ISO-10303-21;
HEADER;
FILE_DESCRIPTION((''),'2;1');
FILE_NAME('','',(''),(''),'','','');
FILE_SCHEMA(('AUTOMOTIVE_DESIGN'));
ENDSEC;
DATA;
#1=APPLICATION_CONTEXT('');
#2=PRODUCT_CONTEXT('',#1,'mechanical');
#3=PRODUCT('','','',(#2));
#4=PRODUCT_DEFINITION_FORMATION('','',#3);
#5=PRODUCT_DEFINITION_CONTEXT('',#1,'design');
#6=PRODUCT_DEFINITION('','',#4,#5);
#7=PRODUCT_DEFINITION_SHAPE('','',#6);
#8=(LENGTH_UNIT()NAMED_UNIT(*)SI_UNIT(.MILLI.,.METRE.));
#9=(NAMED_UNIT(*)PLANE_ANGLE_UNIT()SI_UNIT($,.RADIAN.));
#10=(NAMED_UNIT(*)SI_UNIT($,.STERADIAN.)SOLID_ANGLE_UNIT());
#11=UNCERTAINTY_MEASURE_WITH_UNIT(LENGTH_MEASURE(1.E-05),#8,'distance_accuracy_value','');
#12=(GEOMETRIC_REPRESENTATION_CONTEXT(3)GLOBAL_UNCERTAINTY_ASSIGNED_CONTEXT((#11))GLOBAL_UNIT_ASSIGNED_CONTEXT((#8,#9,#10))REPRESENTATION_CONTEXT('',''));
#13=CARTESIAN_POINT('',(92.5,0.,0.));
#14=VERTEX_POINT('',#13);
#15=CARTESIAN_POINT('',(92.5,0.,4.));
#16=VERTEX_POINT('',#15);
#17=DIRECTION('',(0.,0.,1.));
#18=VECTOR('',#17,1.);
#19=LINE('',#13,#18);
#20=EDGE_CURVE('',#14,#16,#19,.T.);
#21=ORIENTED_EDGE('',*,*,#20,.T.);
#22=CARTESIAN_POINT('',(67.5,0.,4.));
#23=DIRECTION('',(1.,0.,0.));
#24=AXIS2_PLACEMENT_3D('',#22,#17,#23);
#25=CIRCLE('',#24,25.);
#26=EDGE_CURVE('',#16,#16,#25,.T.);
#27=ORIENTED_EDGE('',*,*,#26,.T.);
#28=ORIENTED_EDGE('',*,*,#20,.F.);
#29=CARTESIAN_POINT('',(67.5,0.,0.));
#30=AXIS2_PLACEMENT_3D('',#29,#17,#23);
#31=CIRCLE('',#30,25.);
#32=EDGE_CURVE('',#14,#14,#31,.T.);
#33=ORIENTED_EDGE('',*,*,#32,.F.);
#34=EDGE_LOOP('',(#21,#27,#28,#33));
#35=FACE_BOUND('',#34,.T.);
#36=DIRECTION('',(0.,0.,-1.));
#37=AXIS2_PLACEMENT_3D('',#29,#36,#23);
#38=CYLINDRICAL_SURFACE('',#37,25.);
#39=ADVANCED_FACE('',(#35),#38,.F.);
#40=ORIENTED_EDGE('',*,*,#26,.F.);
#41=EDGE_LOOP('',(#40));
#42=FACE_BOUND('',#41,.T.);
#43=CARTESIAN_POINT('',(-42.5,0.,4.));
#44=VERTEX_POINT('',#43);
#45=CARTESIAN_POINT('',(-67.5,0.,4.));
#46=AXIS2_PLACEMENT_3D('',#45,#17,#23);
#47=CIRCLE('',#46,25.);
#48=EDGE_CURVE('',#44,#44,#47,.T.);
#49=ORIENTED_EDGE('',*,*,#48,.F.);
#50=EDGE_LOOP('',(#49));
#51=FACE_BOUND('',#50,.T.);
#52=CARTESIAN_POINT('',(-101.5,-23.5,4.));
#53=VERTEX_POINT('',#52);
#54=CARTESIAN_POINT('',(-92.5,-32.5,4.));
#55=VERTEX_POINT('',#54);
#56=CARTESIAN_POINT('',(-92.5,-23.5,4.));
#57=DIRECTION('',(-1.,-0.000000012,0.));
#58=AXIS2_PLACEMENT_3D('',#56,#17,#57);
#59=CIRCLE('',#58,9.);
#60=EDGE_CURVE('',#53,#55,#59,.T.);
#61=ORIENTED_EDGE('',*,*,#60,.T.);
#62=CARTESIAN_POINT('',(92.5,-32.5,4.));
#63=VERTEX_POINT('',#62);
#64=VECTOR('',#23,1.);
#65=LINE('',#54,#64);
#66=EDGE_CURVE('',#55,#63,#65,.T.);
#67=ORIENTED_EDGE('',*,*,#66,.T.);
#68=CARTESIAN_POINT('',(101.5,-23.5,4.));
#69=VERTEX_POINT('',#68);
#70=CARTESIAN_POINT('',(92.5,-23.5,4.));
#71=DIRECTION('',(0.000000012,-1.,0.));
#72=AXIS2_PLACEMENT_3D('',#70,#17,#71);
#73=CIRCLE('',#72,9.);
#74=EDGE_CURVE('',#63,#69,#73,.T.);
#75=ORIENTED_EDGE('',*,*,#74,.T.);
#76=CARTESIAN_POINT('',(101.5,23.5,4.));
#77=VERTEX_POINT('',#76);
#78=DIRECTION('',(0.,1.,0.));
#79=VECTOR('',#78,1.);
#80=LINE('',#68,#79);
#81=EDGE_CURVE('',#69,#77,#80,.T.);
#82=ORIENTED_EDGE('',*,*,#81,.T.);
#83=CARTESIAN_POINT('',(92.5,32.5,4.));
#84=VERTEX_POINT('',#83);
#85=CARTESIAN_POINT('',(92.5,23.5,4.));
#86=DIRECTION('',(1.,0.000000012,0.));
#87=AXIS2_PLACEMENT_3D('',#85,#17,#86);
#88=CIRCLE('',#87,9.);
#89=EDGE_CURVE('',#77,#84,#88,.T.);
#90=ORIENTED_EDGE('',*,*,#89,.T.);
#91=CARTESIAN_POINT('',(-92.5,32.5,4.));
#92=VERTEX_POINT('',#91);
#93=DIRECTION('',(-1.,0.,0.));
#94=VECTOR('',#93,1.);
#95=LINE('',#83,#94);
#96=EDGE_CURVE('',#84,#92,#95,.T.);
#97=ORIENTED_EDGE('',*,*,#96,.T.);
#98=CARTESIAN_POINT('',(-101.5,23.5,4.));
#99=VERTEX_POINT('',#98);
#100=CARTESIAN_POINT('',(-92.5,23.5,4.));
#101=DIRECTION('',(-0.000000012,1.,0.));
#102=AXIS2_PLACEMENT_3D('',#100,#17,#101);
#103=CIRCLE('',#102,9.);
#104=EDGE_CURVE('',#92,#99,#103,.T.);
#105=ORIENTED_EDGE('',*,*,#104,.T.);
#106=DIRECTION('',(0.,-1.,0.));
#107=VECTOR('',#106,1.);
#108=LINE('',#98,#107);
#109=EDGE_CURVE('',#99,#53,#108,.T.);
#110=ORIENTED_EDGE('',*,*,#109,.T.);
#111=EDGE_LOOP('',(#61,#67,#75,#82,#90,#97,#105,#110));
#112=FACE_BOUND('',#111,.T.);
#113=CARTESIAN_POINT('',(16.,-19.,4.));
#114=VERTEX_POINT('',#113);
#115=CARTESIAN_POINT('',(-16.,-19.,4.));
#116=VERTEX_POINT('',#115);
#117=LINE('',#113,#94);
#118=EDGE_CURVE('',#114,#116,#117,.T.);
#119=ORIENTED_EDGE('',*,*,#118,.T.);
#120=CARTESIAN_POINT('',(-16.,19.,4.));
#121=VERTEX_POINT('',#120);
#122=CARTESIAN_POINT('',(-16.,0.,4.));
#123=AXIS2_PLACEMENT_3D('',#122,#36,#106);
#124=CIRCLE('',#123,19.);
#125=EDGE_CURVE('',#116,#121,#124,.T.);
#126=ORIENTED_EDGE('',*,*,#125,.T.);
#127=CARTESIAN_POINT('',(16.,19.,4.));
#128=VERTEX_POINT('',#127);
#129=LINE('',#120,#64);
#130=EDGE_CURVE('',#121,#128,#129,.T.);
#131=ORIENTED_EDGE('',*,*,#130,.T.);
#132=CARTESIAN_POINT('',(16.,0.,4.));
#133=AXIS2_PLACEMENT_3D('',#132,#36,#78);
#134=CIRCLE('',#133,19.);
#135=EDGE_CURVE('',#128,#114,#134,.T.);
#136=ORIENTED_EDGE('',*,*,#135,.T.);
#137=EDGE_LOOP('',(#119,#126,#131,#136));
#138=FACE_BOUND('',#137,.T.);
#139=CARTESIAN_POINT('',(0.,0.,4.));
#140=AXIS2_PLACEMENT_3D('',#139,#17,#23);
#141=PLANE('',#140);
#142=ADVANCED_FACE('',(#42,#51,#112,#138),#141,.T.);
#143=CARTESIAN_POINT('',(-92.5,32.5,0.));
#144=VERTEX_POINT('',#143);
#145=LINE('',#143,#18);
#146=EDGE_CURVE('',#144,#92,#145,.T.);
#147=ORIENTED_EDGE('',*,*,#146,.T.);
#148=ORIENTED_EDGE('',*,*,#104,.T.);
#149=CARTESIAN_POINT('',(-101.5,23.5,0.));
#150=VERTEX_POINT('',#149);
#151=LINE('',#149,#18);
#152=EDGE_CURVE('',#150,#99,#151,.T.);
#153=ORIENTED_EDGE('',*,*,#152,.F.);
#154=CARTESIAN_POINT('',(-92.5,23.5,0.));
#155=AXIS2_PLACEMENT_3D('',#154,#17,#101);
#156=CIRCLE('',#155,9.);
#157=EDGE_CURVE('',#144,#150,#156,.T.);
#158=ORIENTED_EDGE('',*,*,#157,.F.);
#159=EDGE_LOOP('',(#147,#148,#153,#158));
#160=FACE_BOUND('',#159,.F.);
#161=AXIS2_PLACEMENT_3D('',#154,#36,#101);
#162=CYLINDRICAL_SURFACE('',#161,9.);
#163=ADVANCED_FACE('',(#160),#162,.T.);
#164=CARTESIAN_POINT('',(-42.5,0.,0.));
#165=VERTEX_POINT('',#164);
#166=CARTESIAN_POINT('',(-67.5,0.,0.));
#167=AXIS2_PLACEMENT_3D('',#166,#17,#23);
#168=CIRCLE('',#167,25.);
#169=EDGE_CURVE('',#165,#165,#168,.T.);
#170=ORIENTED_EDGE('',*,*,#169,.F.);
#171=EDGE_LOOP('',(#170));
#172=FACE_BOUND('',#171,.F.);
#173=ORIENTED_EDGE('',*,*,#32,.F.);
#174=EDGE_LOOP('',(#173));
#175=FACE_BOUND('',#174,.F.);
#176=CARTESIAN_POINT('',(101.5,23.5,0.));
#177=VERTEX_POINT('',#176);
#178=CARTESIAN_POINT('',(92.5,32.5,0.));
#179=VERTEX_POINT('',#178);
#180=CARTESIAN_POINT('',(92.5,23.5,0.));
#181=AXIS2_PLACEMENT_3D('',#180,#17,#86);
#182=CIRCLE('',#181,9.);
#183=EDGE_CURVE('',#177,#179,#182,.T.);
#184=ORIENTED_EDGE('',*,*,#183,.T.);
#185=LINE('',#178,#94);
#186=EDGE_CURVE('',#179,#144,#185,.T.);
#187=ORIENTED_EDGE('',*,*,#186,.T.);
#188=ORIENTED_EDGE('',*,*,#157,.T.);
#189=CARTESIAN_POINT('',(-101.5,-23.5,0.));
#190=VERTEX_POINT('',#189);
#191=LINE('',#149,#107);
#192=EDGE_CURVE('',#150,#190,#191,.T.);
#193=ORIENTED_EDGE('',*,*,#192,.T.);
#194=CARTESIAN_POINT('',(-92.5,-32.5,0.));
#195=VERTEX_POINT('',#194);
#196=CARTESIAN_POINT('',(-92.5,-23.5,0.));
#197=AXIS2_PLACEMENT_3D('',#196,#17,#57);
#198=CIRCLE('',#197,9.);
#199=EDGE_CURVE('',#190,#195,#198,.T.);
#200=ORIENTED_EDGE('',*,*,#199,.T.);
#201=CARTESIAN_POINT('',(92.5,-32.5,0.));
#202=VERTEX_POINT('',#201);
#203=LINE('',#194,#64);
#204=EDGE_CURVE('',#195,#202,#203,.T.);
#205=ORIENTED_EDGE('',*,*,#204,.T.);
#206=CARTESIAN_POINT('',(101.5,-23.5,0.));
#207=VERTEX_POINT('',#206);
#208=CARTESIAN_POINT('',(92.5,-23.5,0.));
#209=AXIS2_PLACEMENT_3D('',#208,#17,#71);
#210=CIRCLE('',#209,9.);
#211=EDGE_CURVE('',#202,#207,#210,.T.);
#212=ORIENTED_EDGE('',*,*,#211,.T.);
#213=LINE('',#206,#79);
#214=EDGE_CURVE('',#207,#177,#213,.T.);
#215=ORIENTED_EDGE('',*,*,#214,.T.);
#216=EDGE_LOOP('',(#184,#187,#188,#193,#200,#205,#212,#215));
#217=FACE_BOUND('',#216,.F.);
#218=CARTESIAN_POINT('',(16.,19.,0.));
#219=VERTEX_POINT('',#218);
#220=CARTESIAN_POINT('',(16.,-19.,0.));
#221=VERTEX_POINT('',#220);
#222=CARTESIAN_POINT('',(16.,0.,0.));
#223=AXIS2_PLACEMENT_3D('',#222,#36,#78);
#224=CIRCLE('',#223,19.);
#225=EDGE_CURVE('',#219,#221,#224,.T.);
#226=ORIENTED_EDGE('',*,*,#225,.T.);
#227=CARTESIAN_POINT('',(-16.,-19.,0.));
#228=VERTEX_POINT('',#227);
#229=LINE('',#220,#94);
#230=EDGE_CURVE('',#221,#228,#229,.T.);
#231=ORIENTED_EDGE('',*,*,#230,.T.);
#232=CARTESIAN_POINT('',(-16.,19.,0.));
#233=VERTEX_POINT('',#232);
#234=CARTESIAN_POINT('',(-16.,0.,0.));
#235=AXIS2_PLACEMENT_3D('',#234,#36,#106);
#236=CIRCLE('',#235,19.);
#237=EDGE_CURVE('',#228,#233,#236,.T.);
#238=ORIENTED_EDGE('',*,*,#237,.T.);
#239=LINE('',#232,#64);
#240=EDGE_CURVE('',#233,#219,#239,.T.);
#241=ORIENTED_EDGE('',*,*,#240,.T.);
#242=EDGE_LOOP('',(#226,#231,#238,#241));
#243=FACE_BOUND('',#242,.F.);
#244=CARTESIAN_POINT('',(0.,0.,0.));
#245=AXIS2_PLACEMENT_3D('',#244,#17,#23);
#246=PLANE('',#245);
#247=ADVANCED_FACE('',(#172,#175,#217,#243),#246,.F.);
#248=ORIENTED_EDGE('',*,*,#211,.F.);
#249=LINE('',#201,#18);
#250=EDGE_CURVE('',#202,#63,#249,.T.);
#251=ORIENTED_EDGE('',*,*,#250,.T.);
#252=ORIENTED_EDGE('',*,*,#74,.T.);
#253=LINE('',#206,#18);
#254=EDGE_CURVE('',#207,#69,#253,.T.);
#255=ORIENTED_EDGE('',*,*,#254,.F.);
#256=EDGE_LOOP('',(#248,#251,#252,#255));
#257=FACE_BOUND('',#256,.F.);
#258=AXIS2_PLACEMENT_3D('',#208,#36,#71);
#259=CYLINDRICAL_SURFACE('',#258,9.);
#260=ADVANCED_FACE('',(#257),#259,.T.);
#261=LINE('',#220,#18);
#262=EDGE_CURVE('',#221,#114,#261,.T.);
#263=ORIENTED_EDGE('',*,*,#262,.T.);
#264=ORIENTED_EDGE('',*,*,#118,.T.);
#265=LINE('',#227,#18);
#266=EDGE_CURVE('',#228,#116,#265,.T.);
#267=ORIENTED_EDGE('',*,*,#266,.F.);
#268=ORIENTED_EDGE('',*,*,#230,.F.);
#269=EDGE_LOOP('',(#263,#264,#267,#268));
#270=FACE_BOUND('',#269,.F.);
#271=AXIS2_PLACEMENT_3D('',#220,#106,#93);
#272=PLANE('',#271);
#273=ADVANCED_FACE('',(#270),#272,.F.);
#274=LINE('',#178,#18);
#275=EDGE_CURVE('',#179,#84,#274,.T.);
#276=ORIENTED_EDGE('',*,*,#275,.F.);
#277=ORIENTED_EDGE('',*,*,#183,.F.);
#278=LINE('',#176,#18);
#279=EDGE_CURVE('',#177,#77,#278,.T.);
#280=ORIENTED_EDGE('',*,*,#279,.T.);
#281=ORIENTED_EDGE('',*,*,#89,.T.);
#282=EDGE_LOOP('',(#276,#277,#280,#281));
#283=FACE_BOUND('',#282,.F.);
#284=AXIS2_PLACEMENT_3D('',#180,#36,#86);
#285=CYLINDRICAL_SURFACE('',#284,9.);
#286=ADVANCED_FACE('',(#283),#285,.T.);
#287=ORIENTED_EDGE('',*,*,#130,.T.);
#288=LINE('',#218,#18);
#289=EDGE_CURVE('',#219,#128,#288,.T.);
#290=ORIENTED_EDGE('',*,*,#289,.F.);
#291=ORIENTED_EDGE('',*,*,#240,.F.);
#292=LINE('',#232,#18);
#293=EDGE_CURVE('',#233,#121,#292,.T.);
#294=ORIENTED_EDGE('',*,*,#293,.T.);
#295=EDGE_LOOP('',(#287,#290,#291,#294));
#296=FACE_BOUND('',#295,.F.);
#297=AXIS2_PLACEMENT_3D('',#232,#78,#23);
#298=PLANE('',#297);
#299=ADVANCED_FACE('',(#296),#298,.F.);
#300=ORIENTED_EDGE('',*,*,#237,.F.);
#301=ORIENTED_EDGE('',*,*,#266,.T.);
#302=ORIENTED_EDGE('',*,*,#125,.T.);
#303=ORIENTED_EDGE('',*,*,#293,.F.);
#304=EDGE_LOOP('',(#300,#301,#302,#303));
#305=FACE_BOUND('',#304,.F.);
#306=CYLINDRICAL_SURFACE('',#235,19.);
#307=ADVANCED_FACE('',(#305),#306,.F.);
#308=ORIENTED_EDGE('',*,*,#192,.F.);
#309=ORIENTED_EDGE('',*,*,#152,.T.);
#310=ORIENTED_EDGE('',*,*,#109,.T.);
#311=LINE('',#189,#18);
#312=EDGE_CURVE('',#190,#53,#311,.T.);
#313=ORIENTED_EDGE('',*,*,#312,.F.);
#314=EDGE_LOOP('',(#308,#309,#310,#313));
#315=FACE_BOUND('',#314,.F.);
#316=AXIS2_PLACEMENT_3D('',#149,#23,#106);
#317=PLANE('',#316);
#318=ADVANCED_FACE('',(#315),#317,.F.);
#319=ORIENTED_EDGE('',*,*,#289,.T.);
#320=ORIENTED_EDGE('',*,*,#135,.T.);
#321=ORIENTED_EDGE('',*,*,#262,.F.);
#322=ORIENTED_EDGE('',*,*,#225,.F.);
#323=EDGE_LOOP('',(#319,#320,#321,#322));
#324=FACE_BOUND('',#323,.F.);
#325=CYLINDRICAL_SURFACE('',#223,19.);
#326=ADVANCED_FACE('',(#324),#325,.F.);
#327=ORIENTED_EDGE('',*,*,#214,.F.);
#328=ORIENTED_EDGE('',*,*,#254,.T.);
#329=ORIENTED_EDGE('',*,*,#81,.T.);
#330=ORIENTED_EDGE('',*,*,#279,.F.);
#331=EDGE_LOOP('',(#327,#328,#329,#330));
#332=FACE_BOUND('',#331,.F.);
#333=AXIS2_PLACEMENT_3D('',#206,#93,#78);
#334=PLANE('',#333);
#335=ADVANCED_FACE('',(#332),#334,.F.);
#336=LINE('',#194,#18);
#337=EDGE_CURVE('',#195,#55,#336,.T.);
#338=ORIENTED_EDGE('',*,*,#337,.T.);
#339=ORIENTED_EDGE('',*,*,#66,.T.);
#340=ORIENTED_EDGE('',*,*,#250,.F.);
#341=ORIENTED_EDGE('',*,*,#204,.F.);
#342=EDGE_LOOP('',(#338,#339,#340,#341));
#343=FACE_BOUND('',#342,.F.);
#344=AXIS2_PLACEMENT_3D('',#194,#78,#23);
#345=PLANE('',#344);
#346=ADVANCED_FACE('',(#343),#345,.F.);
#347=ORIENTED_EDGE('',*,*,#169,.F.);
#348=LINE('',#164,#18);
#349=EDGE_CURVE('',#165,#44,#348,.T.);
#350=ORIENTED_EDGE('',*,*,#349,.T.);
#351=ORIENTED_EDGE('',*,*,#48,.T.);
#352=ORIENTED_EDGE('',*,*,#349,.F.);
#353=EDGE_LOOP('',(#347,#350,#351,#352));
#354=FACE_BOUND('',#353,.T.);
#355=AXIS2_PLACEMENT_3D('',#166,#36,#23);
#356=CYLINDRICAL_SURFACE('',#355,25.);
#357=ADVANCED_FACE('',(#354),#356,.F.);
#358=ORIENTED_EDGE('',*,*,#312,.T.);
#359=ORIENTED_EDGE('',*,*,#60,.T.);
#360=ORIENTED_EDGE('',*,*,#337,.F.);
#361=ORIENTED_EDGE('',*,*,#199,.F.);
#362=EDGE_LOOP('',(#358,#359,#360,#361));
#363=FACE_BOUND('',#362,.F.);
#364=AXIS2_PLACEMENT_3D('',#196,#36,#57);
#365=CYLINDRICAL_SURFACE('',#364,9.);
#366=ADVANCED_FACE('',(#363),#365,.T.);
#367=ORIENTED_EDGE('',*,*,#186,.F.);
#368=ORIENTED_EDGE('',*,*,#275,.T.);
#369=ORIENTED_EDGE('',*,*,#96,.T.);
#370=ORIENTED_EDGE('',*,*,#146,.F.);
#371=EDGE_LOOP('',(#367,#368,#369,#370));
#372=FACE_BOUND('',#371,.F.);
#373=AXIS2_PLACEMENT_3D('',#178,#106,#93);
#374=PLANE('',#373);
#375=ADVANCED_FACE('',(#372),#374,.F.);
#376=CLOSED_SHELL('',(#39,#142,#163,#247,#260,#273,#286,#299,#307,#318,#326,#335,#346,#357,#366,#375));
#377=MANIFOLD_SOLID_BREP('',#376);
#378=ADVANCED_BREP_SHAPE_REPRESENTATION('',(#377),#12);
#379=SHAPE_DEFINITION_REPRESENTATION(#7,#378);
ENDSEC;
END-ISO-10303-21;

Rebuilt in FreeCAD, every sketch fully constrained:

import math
import FreeCAD as App
import Part
import Sketcher
from FreeCAD import Vector

doc = App.newDocument("Part")
body = doc.addObject("PartDesign::Body", "Body")

# Sketch on XY plane
sketch1 = doc.addObject("Sketcher::SketchObject", "Sketch")
body.addObject(sketch1)
sketch1.AttachmentSupport = (doc.XY_Plane, [""])
sketch1.MapMode = "FlatFace"
sketch1.addGeometry([
    Part.LineSegment(Vector(-92.5, -32.5, 0), Vector(92.5, -32.5, 0)),  # 0
    Part.ArcOfCircle(Part.Circle(Vector(92.5, -23.5, 0), Vector(0, 0, 1), 9), math.radians(-89.999999), math.radians(-0.000001)),  # 1
    Part.LineSegment(Vector(101.5, -23.5, 0), Vector(101.5, 23.5, 0)),  # 2
    Part.ArcOfCircle(Part.Circle(Vector(92.5, 23.5, 0), Vector(0, 0, 1), 9), math.radians(0.000001), math.radians(89.999999)),  # 3
    Part.LineSegment(Vector(92.5, 32.5, 0), Vector(-92.5, 32.5, 0)),  # 4
    Part.ArcOfCircle(Part.Circle(Vector(-92.5, 23.5, 0), Vector(0, 0, 1), 9), math.radians(90.000001), math.radians(179.999999)),  # 5
    Part.LineSegment(Vector(-101.5, 23.5, 0), Vector(-101.5, -23.5, 0)),  # 6
    Part.ArcOfCircle(Part.Circle(Vector(-92.5, -23.5, 0), Vector(0, 0, 1), 9), math.radians(-179.999999), math.radians(-90.000001)),  # 7
    Part.Circle(Vector(-67.5, 0, 0), Vector(0, 0, 1), 25),  # 8
    Part.ArcOfCircle(Part.Circle(Vector(16, 0, 0), Vector(0, 0, 1), 19), math.radians(-90), math.radians(90)),  # 9
    Part.LineSegment(Vector(16, -19, 0), Vector(-16, -19, 0)),  # 10
    Part.ArcOfCircle(Part.Circle(Vector(-16, 0, 0), Vector(0, 0, 1), 19), math.radians(90), math.radians(270)),  # 11
    Part.LineSegment(Vector(-16, 19, 0), Vector(16, 19, 0)),  # 12
    Part.Circle(Vector(67.5, 0, 0), Vector(0, 0, 1), 25),  # 13
], False)
sketch1.addConstraint([
    Sketcher.Constraint("Tangent", 0, 2, 1, 1),
    Sketcher.Constraint("Tangent", 1, 2, 2, 1),
    Sketcher.Constraint("Tangent", 2, 2, 3, 1),
    Sketcher.Constraint("Tangent", 3, 2, 4, 1),
    Sketcher.Constraint("Tangent", 4, 2, 5, 1),
    Sketcher.Constraint("Tangent", 5, 2, 6, 1),
    Sketcher.Constraint("Tangent", 6, 2, 7, 1),
    Sketcher.Constraint("Tangent", 7, 2, 0, 1),
    Sketcher.Constraint("Tangent", 9, 1, 10, 1),
    Sketcher.Constraint("Tangent", 10, 2, 11, 2),
    Sketcher.Constraint("Tangent", 11, 1, 12, 1),
    Sketcher.Constraint("Tangent", 12, 2, 9, 2),
    Sketcher.Constraint("Horizontal", 0),
    Sketcher.Constraint("Vertical", 2),
    Sketcher.Constraint("Horizontal", 4),
    Sketcher.Constraint("Vertical", 6),
    Sketcher.Constraint("Horizontal", 10),
    Sketcher.Constraint("Horizontal", 12),
    Sketcher.Constraint("Equal", 1, 3),
    Sketcher.Constraint("Equal", 3, 5),
    Sketcher.Constraint("Equal", 5, 7),
    Sketcher.Constraint("Equal", 8, 13),
    Sketcher.Constraint("Symmetric", 1, 3, 5, 3, -1, 1),
    Sketcher.Constraint("Symmetric", 9, 3, 11, 3, -1, 1),
    Sketcher.Constraint("Symmetric", 8, 3, 13, 3, -1, 1),
    Sketcher.Constraint("PointOnObject", 8, 3, -1),
    Sketcher.Constraint("Diameter", 8, 50.0),
    Sketcher.Constraint("Radius", 1, 9.0),
    Sketcher.Constraint("Radius", 9, 19.0),
    Sketcher.Constraint("DistanceX", 0, 1, 0, 2, 185.0),
    Sketcher.Constraint("DistanceX", 10, 2, 10, 1, 32.0),
    Sketcher.Constraint("DistanceY", 2, 1, 2, 2, 47.0),
    Sketcher.Constraint("DistanceX", 5, 3, 8, 3, 25.0),
])
pad1 = doc.addObject("PartDesign::Pad", "Pad")
body.addObject(pad1)
pad1.Profile = sketch1
pad1.Length = 4

doc.recompute()
